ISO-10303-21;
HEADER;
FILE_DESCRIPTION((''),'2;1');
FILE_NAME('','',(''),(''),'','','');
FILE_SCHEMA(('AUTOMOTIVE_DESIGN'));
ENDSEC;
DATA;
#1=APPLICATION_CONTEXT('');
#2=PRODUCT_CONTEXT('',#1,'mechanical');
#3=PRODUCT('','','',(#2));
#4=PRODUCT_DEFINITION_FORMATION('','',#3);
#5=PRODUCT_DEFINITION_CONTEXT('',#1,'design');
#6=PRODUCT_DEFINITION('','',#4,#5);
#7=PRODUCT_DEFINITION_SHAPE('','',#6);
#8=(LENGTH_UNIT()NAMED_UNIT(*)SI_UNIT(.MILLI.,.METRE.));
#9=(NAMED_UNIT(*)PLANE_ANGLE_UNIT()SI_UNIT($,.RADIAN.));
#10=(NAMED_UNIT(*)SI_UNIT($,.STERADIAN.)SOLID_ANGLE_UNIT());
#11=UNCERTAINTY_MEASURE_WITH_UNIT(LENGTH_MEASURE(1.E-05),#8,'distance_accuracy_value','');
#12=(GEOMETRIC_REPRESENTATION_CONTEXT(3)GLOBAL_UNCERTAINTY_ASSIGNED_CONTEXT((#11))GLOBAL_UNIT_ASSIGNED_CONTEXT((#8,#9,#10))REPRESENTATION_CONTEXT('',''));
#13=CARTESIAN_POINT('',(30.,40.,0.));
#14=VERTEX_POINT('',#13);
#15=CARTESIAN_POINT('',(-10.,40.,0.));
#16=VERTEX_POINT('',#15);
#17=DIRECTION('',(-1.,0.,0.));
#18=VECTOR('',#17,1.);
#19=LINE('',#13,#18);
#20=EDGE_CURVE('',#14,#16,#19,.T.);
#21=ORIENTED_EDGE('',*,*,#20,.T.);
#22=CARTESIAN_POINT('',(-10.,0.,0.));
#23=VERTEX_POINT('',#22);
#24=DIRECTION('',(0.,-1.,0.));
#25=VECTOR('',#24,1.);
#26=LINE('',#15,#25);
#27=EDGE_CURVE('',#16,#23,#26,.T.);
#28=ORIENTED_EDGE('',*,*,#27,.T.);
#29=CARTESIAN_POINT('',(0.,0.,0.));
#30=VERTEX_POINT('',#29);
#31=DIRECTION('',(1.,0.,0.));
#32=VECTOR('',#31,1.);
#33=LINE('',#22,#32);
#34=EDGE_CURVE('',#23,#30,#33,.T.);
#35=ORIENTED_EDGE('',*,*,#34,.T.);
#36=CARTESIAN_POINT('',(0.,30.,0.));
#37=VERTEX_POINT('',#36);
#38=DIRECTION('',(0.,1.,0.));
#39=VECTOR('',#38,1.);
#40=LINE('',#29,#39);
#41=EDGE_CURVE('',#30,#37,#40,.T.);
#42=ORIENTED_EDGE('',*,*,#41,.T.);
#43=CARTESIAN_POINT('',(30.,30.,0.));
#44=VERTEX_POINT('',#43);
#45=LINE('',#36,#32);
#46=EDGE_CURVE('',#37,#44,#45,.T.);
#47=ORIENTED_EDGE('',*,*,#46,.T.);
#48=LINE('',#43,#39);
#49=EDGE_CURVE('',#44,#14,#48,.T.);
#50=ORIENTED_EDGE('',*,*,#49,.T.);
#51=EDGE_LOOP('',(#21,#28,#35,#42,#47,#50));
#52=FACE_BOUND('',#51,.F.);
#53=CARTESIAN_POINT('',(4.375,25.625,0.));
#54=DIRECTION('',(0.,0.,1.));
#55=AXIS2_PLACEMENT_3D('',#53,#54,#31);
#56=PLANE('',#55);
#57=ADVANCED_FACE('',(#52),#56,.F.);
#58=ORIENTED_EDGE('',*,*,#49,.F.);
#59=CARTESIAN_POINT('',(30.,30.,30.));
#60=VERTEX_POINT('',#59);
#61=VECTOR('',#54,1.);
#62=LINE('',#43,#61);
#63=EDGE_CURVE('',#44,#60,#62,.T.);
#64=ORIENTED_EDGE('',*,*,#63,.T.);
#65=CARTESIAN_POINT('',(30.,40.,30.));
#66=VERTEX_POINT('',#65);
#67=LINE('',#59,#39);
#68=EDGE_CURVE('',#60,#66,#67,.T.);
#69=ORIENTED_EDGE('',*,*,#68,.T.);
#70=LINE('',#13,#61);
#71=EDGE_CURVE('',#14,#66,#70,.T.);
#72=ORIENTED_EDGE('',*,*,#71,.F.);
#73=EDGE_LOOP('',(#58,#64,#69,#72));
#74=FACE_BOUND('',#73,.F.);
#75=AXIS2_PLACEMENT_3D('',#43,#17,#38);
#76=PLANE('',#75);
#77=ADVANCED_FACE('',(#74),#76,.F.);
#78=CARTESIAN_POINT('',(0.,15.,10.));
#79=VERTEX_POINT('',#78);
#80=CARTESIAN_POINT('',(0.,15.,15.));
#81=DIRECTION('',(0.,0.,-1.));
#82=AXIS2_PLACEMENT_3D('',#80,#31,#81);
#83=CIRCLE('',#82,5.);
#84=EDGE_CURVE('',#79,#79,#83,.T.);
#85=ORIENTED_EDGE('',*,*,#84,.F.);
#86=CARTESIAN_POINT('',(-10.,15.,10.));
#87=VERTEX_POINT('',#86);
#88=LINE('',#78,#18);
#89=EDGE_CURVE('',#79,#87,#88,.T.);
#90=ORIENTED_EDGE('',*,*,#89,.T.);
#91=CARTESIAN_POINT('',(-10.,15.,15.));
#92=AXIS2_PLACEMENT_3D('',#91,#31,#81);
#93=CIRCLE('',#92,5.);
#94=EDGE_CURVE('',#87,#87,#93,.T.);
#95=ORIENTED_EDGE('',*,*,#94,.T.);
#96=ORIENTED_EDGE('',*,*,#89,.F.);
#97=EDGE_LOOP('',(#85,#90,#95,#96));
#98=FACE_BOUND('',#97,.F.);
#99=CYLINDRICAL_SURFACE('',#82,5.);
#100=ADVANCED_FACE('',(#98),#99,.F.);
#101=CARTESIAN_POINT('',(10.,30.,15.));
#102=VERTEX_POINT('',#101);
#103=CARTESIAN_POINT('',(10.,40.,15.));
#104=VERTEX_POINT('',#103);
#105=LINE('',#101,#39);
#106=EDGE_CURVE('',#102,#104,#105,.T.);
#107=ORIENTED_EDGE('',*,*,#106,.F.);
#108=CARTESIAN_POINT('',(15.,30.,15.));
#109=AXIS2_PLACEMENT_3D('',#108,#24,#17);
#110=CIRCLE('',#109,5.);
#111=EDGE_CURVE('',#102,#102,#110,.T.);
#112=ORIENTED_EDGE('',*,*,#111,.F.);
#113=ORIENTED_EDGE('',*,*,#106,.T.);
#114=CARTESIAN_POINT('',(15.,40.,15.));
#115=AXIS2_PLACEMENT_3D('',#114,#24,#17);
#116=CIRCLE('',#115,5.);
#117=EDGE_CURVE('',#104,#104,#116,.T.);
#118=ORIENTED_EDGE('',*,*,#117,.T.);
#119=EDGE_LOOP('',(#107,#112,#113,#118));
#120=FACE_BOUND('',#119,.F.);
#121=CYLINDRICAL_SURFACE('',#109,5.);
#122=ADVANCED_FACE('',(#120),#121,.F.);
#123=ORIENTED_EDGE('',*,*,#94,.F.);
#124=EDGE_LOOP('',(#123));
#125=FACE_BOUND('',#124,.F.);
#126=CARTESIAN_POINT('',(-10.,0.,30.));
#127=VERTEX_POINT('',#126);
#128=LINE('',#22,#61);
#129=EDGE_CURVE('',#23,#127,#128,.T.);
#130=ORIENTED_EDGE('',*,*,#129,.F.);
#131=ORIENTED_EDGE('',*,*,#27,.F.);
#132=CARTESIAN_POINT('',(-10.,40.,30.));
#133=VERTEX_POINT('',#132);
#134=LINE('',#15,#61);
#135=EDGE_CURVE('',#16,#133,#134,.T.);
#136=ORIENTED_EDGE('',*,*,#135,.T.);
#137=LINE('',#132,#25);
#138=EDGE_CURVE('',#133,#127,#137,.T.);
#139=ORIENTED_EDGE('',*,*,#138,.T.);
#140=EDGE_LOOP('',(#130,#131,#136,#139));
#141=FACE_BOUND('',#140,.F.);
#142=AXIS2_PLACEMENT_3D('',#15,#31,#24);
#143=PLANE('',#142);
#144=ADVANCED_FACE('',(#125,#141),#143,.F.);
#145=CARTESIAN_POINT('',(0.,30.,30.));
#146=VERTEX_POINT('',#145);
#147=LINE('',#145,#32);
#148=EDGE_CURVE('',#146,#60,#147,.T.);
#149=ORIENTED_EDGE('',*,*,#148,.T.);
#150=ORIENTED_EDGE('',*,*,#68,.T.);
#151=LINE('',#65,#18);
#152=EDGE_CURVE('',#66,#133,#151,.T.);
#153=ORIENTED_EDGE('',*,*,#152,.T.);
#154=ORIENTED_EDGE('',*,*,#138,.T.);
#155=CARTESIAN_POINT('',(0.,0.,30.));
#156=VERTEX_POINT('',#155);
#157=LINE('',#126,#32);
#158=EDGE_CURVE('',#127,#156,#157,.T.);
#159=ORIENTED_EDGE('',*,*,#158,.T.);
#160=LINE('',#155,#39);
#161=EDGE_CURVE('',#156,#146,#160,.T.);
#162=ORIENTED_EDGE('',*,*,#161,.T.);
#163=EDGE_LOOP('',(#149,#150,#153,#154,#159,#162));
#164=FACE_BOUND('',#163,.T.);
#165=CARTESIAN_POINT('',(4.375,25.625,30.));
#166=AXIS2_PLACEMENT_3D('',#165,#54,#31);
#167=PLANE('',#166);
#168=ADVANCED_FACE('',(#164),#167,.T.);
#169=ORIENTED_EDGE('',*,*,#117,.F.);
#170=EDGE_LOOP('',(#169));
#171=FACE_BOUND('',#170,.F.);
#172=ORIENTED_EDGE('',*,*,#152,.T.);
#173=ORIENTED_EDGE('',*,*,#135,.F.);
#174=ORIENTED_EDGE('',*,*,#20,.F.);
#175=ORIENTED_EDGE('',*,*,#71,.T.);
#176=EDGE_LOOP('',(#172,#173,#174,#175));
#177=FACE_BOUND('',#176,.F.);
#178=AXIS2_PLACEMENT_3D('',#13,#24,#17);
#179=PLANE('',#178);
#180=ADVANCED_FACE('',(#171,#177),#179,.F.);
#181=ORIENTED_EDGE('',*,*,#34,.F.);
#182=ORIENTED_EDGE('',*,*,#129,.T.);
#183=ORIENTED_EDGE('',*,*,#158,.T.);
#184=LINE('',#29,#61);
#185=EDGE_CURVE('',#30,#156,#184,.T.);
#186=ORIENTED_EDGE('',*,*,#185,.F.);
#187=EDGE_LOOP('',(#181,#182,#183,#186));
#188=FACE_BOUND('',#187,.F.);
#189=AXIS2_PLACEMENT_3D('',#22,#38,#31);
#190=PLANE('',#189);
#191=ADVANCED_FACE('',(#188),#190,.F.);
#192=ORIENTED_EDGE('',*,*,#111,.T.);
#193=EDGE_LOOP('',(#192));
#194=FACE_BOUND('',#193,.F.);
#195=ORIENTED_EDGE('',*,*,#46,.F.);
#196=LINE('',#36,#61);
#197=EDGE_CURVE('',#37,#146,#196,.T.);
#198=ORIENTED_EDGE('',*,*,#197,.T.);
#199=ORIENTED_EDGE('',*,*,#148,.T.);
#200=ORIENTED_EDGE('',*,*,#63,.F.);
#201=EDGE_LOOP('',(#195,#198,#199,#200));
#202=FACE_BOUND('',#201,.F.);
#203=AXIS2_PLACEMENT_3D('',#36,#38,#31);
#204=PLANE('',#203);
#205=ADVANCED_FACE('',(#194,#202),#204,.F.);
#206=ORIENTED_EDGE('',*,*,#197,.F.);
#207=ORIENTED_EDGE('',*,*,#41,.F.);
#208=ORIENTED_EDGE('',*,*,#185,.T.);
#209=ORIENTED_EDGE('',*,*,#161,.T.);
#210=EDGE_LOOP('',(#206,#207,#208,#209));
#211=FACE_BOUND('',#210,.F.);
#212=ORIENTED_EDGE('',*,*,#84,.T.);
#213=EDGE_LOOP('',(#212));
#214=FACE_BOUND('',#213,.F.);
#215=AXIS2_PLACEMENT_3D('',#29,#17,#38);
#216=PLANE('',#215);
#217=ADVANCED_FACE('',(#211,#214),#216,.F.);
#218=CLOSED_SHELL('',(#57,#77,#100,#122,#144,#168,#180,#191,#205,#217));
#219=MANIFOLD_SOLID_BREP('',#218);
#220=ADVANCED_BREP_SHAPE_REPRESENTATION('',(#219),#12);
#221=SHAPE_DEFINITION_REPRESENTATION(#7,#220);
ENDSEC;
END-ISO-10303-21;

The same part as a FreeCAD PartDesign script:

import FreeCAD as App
import Part
import Sketcher
from FreeCAD import Vector
Q = App.Units.Quantity

doc = App.newDocument("Part")
body = doc.addObject("PartDesign::Body", "Body")

sketch1 = body.newObject("Sketcher::SketchObject", "Sketch")
sketch1.AttachmentSupport = (doc.getObject("XY_Plane"), [""])
sketch1.MapMode = "FlatFace"
sketch1.addGeometry([
    Part.LineSegment(Vector(0, 0, 0), Vector(0, 30, 0)),
    Part.LineSegment(Vector(0, 30, 0), Vector(30, 30, 0)),
    Part.LineSegment(Vector(30, 30, 0), Vector(30, 40, 0)),
    Part.LineSegment(Vector(30, 40, 0), Vector(-10, 40, 0)),
    Part.LineSegment(Vector(-10, 40, 0), Vector(-10, 0, 0)),
    Part.LineSegment(Vector(-10, 0, 0), Vector(0, 0, 0)),
], False)
sketch1.addConstraint([
    Sketcher.Constraint("Coincident", 0, 2, 1, 1),
    Sketcher.Constraint("Coincident", 1, 2, 2, 1),
    Sketcher.Constraint("Coincident", 2, 2, 3, 1),
    Sketcher.Constraint("Coincident", 3, 2, 4, 1),
    Sketcher.Constraint("Coincident", 4, 2, 5, 1),
    Sketcher.Constraint("Coincident", 5, 2, 0, 1),
    Sketcher.Constraint("Vertical", 0),
    Sketcher.Constraint("Horizontal", 1),
    Sketcher.Constraint("Vertical", 2),
    Sketcher.Constraint("Horizontal", 3),
    Sketcher.Constraint("Vertical", 4),
    Sketcher.Constraint("Horizontal", 5),
    Sketcher.Constraint("Coincident", 5, 2, -1, 1),
    Sketcher.Constraint("Equal", 1, 0),
    Sketcher.Constraint("Equal", 5, 2),
    Sketcher.Constraint("DistanceX", 1, 1, 1, 2, Q("30 mm")),
    Sketcher.Constraint("DistanceX", 3, 2, 3, 1, Q("40 mm")),
])
pad1 = body.newObject("PartDesign::Pad", "Pad")
pad1.Profile = sketch1
pad1.Length = 30

sketch2 = body.newObject("Sketcher::SketchObject", "Sketch001")
sketch2.AttachmentSupport = (doc.getObject("XZ_Plane"), [""])
sketch2.MapMode = "FlatFace"
sketch2.AttachmentOffset = App.Placement(Vector(0, 0, -30), App.Rotation())
sketch2.addGeometry(Part.Circle(Vector(15, 15, 0), Vector(0, 0, 1), 5), False)
sketch2.addConstraint([
    Sketcher.Constraint("Diameter", 0, Q("10 mm")),
    Sketcher.Constraint("DistanceX", -1, 1, 0, 3, Q("15 mm")),
    Sketcher.Constraint("DistanceY", -1, 1, 0, 3, Q("15 mm")),
])
pocket1 = body.newObject("PartDesign::Pocket", "Pocket")
pocket1.Profile = sketch2
pocket1.Type = "ThroughAll"
pocket1.Midplane = True

sketch3 = body.newObject("Sketcher::SketchObject", "Sketch002")
sketch3.AttachmentSupport = (doc.getObject("YZ_Plane"), [""])
sketch3.MapMode = "FlatFace"
sketch3.addGeometry(Part.Circle(Vector(15, 15, 0), Vector(0, 0, 1), 5), False)
sketch3.addConstraint([
    Sketcher.Constraint("Diameter", 0, Q("10 mm")),
    Sketcher.Constraint("DistanceX", -1, 1, 0, 3, Q("15 mm")),
    Sketcher.Constraint("DistanceY", -1, 1, 0, 3, Q("15 mm")),
])
pocket2 = body.newObject("PartDesign::Pocket", "Pocket001")
pocket2.Profile = sketch3
pocket2.Type = "ThroughAll"

doc.recompute()
